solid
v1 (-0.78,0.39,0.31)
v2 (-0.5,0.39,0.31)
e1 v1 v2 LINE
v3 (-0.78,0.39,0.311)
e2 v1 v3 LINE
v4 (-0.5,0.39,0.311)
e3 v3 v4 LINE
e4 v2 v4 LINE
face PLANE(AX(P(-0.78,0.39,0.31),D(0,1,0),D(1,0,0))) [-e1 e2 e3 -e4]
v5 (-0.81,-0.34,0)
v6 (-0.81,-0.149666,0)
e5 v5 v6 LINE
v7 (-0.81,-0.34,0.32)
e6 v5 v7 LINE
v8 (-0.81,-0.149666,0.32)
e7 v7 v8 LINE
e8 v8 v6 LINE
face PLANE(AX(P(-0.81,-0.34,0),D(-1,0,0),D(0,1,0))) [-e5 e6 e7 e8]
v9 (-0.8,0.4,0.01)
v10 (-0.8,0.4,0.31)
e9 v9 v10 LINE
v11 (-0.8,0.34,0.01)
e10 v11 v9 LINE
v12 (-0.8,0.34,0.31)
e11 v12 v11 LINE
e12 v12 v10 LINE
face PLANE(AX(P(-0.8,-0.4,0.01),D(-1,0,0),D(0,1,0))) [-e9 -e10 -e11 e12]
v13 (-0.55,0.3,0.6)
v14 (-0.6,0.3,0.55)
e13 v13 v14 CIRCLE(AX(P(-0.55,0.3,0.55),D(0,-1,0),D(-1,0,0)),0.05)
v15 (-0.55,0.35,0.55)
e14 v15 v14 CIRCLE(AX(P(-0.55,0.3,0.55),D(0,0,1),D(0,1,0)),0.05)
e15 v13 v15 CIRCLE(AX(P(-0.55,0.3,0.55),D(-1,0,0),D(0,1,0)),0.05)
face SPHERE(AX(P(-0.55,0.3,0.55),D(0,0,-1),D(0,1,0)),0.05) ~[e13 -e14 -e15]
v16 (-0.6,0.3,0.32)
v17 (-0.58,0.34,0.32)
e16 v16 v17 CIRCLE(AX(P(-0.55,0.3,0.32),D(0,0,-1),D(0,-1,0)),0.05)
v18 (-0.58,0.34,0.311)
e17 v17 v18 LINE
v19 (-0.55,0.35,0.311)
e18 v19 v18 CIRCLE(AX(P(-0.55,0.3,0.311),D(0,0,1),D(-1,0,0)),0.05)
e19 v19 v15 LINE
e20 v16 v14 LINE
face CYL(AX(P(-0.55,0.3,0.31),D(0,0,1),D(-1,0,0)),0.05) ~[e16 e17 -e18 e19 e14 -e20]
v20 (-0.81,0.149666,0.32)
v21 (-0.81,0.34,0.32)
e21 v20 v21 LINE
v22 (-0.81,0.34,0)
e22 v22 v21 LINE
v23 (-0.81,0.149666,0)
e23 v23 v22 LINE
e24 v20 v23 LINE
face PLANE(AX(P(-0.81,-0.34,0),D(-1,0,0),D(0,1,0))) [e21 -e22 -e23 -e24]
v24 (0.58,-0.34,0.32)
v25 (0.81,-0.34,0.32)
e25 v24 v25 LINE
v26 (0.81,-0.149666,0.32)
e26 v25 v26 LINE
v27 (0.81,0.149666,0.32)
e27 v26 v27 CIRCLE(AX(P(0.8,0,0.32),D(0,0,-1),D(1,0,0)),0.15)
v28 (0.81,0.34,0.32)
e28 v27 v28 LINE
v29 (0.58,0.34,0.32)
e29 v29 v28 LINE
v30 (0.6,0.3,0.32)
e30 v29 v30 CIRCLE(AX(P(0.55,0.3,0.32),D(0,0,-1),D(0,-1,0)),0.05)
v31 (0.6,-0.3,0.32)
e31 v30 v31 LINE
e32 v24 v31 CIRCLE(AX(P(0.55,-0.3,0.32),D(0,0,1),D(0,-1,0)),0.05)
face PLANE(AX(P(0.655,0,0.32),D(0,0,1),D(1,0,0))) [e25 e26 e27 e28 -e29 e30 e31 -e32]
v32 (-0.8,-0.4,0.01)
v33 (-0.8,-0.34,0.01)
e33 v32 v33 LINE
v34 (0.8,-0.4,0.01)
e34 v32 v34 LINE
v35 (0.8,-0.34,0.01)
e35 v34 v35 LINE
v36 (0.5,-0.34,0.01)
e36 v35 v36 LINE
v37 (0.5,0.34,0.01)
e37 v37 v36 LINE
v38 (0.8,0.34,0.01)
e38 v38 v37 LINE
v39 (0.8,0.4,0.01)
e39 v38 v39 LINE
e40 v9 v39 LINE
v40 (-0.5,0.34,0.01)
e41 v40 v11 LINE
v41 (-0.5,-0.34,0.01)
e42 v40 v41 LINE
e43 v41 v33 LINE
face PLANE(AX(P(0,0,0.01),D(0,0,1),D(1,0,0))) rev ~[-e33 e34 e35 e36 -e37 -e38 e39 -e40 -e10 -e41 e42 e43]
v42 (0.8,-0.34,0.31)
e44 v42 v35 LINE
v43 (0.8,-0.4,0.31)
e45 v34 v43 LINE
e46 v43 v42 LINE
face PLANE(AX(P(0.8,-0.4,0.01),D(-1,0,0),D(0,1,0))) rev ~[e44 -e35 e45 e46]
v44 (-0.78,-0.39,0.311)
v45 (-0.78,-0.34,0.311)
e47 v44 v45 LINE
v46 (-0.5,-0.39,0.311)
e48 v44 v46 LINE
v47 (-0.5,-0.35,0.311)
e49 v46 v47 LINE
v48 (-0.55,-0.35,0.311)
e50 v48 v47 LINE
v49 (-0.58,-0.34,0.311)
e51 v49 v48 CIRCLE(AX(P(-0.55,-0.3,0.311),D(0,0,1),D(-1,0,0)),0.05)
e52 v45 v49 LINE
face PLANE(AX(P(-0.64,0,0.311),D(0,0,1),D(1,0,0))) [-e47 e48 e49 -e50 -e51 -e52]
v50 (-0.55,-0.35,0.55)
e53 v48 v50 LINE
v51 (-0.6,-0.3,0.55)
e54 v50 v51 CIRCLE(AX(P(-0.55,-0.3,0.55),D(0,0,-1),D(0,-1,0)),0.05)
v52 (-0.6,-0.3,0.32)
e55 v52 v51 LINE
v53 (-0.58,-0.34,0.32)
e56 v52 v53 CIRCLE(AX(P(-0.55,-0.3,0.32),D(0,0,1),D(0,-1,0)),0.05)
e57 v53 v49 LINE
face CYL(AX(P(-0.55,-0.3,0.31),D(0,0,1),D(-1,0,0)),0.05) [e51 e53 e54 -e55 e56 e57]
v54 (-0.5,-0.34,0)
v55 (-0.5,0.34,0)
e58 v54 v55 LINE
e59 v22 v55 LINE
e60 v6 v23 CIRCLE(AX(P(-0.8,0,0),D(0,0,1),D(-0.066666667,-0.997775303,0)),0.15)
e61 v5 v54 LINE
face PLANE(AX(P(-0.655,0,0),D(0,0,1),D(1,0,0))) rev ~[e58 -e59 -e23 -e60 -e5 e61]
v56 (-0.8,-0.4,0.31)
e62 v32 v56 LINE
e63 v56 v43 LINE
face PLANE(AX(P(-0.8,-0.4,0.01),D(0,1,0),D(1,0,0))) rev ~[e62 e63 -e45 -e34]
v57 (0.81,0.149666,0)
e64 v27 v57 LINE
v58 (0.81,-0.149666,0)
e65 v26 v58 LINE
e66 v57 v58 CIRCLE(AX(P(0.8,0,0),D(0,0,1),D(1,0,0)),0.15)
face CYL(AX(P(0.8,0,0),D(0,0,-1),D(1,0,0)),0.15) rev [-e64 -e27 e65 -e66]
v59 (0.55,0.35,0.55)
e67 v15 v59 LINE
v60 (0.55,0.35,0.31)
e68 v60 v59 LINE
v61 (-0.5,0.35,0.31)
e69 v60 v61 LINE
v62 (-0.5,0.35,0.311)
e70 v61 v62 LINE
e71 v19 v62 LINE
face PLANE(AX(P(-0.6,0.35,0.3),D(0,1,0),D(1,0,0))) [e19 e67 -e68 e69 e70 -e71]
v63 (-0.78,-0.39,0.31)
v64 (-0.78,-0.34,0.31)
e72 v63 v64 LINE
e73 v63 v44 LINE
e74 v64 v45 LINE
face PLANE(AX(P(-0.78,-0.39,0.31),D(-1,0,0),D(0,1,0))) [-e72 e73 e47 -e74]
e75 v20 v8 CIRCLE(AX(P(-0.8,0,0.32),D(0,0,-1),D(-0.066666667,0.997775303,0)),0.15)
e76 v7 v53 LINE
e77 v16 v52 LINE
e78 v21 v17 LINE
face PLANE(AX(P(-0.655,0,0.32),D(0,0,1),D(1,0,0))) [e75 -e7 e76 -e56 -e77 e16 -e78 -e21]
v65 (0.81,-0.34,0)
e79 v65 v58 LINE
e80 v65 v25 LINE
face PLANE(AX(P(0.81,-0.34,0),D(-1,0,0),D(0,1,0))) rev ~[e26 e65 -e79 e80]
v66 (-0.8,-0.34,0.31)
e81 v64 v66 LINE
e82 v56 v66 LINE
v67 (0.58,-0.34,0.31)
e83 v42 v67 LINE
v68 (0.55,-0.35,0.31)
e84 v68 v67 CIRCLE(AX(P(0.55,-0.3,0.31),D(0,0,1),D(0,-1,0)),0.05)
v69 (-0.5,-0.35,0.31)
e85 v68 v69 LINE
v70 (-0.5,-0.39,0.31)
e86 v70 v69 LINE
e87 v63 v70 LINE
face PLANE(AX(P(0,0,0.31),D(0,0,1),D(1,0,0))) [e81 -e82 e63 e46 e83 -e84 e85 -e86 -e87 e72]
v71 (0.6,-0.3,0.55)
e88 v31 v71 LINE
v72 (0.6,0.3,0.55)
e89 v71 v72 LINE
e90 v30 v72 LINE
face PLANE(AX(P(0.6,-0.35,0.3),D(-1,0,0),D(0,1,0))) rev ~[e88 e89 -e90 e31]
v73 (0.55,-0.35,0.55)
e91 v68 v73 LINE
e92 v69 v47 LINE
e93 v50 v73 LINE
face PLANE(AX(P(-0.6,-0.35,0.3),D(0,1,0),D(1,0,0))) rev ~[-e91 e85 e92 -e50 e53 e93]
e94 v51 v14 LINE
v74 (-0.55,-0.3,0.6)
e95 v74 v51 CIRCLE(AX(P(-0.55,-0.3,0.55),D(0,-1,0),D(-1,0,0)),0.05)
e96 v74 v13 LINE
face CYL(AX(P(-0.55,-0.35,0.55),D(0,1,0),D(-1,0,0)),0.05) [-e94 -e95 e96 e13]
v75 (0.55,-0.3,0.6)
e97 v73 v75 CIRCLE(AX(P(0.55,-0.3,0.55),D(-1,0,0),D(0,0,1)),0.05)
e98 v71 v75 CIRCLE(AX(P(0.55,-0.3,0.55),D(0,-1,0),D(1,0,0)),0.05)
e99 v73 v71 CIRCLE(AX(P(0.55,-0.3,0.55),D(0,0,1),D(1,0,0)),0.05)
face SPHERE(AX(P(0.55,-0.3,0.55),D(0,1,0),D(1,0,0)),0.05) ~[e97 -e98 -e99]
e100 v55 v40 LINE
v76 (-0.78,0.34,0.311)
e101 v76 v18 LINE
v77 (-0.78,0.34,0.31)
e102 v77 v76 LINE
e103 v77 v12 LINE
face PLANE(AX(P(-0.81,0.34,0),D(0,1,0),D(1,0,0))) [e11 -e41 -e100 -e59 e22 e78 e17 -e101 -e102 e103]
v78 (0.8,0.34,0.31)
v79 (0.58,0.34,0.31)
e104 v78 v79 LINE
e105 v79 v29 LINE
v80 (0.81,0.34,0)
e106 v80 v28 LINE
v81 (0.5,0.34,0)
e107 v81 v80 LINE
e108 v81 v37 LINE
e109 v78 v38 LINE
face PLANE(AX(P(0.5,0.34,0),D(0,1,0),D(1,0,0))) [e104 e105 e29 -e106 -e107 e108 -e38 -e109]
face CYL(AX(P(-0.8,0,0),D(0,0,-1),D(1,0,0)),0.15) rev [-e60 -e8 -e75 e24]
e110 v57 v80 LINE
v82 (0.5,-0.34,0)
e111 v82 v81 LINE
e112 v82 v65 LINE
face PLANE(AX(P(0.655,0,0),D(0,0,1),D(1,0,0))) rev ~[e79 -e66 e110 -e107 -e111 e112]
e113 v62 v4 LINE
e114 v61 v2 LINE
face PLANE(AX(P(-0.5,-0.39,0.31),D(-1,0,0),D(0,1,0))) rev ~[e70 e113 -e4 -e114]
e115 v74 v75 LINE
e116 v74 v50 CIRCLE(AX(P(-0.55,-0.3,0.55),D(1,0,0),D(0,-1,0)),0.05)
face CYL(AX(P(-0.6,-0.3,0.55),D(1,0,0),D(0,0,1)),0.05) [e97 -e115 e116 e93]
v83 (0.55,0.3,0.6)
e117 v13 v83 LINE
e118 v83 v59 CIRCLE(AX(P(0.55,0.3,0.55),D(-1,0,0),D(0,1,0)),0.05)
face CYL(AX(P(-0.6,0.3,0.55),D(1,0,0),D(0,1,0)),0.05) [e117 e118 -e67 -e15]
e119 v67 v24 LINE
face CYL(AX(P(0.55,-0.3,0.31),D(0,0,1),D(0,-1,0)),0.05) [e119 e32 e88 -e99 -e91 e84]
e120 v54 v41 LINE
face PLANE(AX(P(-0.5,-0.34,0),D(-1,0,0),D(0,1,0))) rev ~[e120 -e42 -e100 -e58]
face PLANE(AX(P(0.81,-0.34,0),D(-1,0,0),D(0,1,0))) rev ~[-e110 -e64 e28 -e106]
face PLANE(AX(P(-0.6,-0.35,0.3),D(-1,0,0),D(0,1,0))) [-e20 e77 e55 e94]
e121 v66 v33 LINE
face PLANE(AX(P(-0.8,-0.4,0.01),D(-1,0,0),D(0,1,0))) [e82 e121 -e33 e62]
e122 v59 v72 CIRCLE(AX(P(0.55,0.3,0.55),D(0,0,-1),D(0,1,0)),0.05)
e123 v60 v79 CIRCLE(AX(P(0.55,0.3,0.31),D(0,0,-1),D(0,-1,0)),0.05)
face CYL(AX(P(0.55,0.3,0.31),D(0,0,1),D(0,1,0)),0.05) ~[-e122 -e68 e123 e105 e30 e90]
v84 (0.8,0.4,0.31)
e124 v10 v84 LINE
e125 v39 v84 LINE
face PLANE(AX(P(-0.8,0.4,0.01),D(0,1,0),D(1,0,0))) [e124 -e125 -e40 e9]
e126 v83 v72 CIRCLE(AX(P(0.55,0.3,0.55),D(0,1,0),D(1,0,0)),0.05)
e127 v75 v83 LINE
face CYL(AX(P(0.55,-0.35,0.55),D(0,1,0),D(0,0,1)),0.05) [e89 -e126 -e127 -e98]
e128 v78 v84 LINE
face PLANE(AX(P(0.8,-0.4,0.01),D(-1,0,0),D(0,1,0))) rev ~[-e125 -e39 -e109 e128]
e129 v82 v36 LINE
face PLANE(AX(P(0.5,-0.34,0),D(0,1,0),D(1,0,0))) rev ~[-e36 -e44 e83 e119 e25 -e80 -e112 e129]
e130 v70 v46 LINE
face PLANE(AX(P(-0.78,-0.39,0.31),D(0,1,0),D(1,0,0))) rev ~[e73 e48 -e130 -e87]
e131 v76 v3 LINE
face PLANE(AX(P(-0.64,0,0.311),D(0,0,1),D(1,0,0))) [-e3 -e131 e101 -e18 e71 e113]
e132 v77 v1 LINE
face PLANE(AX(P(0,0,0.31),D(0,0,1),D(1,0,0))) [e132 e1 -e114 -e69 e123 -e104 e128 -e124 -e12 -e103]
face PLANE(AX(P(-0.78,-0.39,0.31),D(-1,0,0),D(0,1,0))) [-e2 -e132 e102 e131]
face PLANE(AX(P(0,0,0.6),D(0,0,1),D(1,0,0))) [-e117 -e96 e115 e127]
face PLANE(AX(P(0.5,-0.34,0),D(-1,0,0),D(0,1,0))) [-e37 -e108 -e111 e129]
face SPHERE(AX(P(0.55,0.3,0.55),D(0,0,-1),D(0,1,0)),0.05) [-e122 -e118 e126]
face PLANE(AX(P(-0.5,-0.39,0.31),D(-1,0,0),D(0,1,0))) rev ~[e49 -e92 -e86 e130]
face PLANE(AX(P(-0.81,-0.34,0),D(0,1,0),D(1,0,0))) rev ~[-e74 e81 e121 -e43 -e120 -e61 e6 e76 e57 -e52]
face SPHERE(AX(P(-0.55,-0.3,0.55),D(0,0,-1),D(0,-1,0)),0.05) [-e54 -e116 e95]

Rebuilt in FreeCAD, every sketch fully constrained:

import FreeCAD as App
import Part
import Sketcher
from FreeCAD import Vector


def edges_at(feature, points):
    """Names of the edges that pass closest to the given points."""
    edges = feature.Shape.Edges
    near = lambda p: min(range(len(edges)), key=lambda i: edges[i].distToShape(Part.Vertex(*p))[0])
    return sorted({f"Edge{near(p) + 1}" for p in points})

doc = App.newDocument("Part")
params = doc.addObject("Spreadsheet::Sheet", "Params")
for row, (alias, value) in enumerate([
    ("sketch1_width", "1.6 mm"),
    ("sketch1_height", "0.8 mm"),
    ("pad1_length", "0.3 mm"),
    ("sketch2_width", "0.31 mm"),
    ("sketch2_height", "0.68 mm"),
    ("pad2_length", "0.32 mm"),
    ("sketch3_width", "1.2 mm"),
    ("sketch3_height", "0.7 mm"),
    ("pad3_length", "0.3 mm"),
    ("fillet_radius", "0.05 mm"),
    ("sketch4_width", "0.28 mm"),
    ("sketch4_height", "0.78 mm"),
    ("pad4_length", "0.001 mm"),
    ("sketch5_diameter", "0.3 mm"),
    ("pocket1_length", "0.52 mm"),
], start=1):
    params.set(f"A{row}", alias)
    params.set(f"B{row}", "=" + value)
    params.setAlias(f"B{row}", alias)

body = doc.addObject("PartDesign::Body", "Body")

sketch1 = doc.addObject("Sketcher::SketchObject", "Sketch")
body.addObject(sketch1)
sketch1.AttachmentSupport = (doc.XY_Plane, [""])
sketch1.MapMode = "FlatFace"
sketch1.AttachmentOffset = App.Placement(Vector(0, 0, 0.01), App.Rotation())
sketch1.addGeometry([
    Part.LineSegment(Vector(-0.8, 0.4, 0), Vector(-0.8, -0.4, 0)),
    Part.LineSegment(Vector(-0.8, -0.4, 0), Vector(0.8, -0.4, 0)),
    Part.LineSegment(Vector(0.8, -0.4, 0), Vector(0.8, 0.4, 0)),
    Part.LineSegment(Vector(0.8, 0.4, 0), Vector(-0.8, 0.4, 0)),
], False)
sketch1.addConstraint([
    Sketcher.Constraint("Coincident", 0, 2, 1, 1),
    Sketcher.Constraint("Coincident", 1, 2, 2, 1),
    Sketcher.Constraint("Coincident", 2, 2, 3, 1),
    Sketcher.Constraint("Coincident", 3, 2, 0, 1),
    Sketcher.Constraint("Vertical", 0),
    Sketcher.Constraint("Horizontal", 1),
    Sketcher.Constraint("Vertical", 2),
    Sketcher.Constraint("Horizontal", 3),
    Sketcher.Constraint("Symmetric", 0, 2, 2, 2, -1, 1),
    Sketcher.Constraint("DistanceX", 1, 1, 1, 2, 1.6),
    Sketcher.Constraint("DistanceY", 0, 2, 0, 1, 0.8),
])
sketch1.setExpression("Constraints[9]", "Params.sketch1_width")
sketch1.setExpression("Constraints[10]", "Params.sketch1_height")
pad1 = doc.addObject("PartDesign::Pad", "Pad")
body.addObject(pad1)
pad1.Profile = sketch1
pad1.setExpression("Length", "Params.pad1_length")

sketch2 = doc.addObject("Sketcher::SketchObject", "Sketch001")
body.addObject(sketch2)
sketch2.AttachmentSupport = (doc.XY_Plane, [""])
sketch2.MapMode = "FlatFace"
sketch2.addGeometry([
    Part.LineSegment(Vector(-0.81, 0.34, 0), Vector(-0.81, -0.34, 0)),
    Part.LineSegment(Vector(-0.81, -0.34, 0), Vector(-0.5, -0.34, 0)),
    Part.LineSegment(Vector(-0.5, -0.34, 0), Vector(-0.5, 0.34, 0)),
    Part.LineSegment(Vector(-0.5, 0.34, 0), Vector(-0.81, 0.34, 0)),
    Part.LineSegment(Vector(0.5, 0.34, 0), Vector(0.5, -0.34, 0)),
    Part.LineSegment(Vector(0.5, -0.34, 0), Vector(0.81, -0.34, 0)),
    Part.LineSegment(Vector(0.81, -0.34, 0), Vector(0.81, 0.34, 0)),
    Part.LineSegment(Vector(0.81, 0.34, 0), Vector(0.5, 0.34, 0)),
], False)
sketch2.addConstraint([
    Sketcher.Constraint("Coincident", 0, 2, 1, 1),
    Sketcher.Constraint("Coincident", 1, 2, 2, 1),
    Sketcher.Constraint("Coincident", 2, 2, 3, 1),
    Sketcher.Constraint("Coincident", 3, 2, 0, 1),
    Sketcher.Constraint("Coincident", 4, 2, 5, 1),
    Sketcher.Constraint("Coincident", 5, 2, 6, 1),
    Sketcher.Constraint("Coincident", 6, 2, 7, 1),
    Sketcher.Constraint("Coincident", 7, 2, 4, 1),
    Sketcher.Constraint("Vertical", 0),
    Sketcher.Constraint("Horizontal", 1),
    Sketcher.Constraint("Vertical", 2),
    Sketcher.Constraint("Horizontal", 3),
    Sketcher.Constraint("Vertical", 4),
    Sketcher.Constraint("Horizontal", 5),
    Sketcher.Constraint("Vertical", 6),
    Sketcher.Constraint("Horizontal", 7),
    Sketcher.Constraint("Symmetric", 2, 2, 4, 2, -1, 1),
    Sketcher.Constraint("Symmetric", 0, 2, 6, 2, -1, 1),
    Sketcher.Constraint("Horizontal", 1, 2, 4, 2),
    Sketcher.Constraint("DistanceX", 1, 2, 4, 2, 1.0),
    Sketcher.Constraint("DistanceX", 1, 1, 1, 2, 0.31),
    Sketcher.Constraint("DistanceY", 0, 2, 0, 1, 0.68),
])
sketch2.setExpression("Constraints[20]", "Params.sketch2_width")
sketch2.setExpression("Constraints[21]", "Params.sketch2_height")
pad2 = doc.addObject("PartDesign::Pad", "Pad001")
body.addObject(pad2)
pad2.Profile = sketch2
pad2.setExpression("Length", "Params.pad2_length")

sketch3 = doc.addObject("Sketcher::SketchObject", "Sketch002")
body.addObject(sketch3)
sketch3.AttachmentSupport = (doc.XY_Plane, [""])
sketch3.MapMode = "FlatFace"
sketch3.AttachmentOffset = App.Placement(Vector(0, 0, 0.3), App.Rotation())
sketch3.addGeometry([
    Part.LineSegment(Vector(-0.6, 0.35, 0), Vector(-0.6, -0.35, 0)),
    Part.LineSegment(Vector(-0.6, -0.35, 0), Vector(0.6, -0.35, 0)),
    Part.LineSegment(Vector(0.6, -0.35, 0), Vector(0.6, 0.35, 0)),
    Part.LineSegment(Vector(0.6, 0.35, 0), Vector(-0.6, 0.35, 0)),
], False)
sketch3.addConstraint([
    Sketcher.Constraint("Coincident", 0, 2, 1, 1),
    Sketcher.Constraint("Coincident", 1, 2, 2, 1),
    Sketcher.Constraint("Coincident", 2, 2, 3, 1),
    Sketcher.Constraint("Coincident", 3, 2, 0, 1),
    Sketcher.Constraint("Vertical", 0),
    Sketcher.Constraint("Horizontal", 1),
    Sketcher.Constraint("Vertical", 2),
    Sketcher.Constraint("Horizontal", 3),
    Sketcher.Constraint("Symmetric", 0, 2, 2, 2, -1, 1),
    Sketcher.Constraint("DistanceX", 1, 1, 1, 2, 1.2),
    Sketcher.Constraint("DistanceY", 0, 2, 0, 1, 0.7),
])
sketch3.setExpression("Constraints[9]", "Params.sketch3_width")
sketch3.setExpression("Constraints[10]", "Params.sketch3_height")
pad3 = doc.addObject("PartDesign::Pad", "Pad002")
body.addObject(pad3)
pad3.Profile = sketch3
pad3.setExpression("Length", "Params.pad3_length")
doc.recompute()

fillet = doc.addObject("PartDesign::Fillet", "Fillet")
body.addObject(fillet)
fillet.Base = (pad3, edges_at(pad3, [
    (0.6, 0.35, 0.455),
    (-0.6, 0.35, 0.455),
    (0, 0.35, 0.6),
    (0.6, 0, 0.6),
    (0.6, -0.35, 0.455),
    (-0.6, -0.35, 0.455),
    (0, -0.35, 0.6),
    (-0.6, 0, 0.6),
]))
fillet.setExpression("Radius", "Params.fillet_radius")

sketch4 = doc.addObject("Sketcher::SketchObject", "Sketch003")
body.addObject(sketch4)
sketch4.AttachmentSupport = (doc.XY_Plane, [""])
sketch4.MapMode = "FlatFace"
sketch4.AttachmentOffset = App.Placement(Vector(0, 0, 0.31), App.Rotation())
sketch4.addGeometry([
    Part.LineSegment(Vector(-0.78, 0.39, 0), Vector(-0.78, -0.39, 0)),
    Part.LineSegment(Vector(-0.78, -0.39, 0), Vector(-0.5, -0.39, 0)),
    Part.LineSegment(Vector(-0.5, -0.39, 0), Vector(-0.5, 0.39, 0)),
    Part.LineSegment(Vector(-0.5, 0.39, 0), Vector(-0.78, 0.39, 0)),
], False)
sketch4.addConstraint([
    Sketcher.Constraint("Coincident", 0, 2, 1, 1),
    Sketcher.Constraint("Coincident", 1, 2, 2, 1),
    Sketcher.Constraint("Coincident", 2, 2, 3, 1),
    Sketcher.Constraint("Coincident", 3, 2, 0, 1),
    Sketcher.Constraint("Vertical", 0),
    Sketcher.Constraint("Horizontal", 1),
    Sketcher.Constraint("Vertical", 2),
    Sketcher.Constraint("Horizontal", 3),
    Sketcher.Constraint("DistanceX", 1, 1, 1, 2, 0.28),
    Sketcher.Constraint("DistanceY", 0, 2, 0, 1, 0.78),
    Sketcher.Constraint("DistanceX", 1, 2, -1, 1, 0.5),
    Sketcher.Constraint("DistanceY", 0, 2, -1, 1, 0.39),
])
sketch4.setExpression("Constraints[8]", "Params.sketch4_width")
sketch4.setExpression("Constraints[9]", "Params.sketch4_height")
pad4 = doc.addObject("PartDesign::Pad", "Pad003")
body.addObject(pad4)
pad4.Profile = sketch4
pad4.setExpression("Length", "Params.pad4_length")

sketch5 = doc.addObject("Sketcher::SketchObject", "Sketch004")
body.addObject(sketch5)
sketch5.AttachmentSupport = (doc.XY_Plane, [""])
sketch5.MapMode = "FlatFace"
sketch5.addGeometry([
    Part.Circle(Vector(-0.8, 0, 0), Vector(0, 0, 1), 0.15),
    Part.Circle(Vector(0.8, 0, 0), Vector(0, 0, 1), 0.15),
], False)
sketch5.addConstraint([
    Sketcher.Constraint("Equal", 0, 1),
    Sketcher.Constraint("Symmetric", 0, 3, 1, 3, -1, 1),
    Sketcher.Constraint("PointOnObject", 0, 3, -1),
    Sketcher.Constraint("Diameter", 0, 0.3),
    Sketcher.Constraint("DistanceX", 0, 3, -1, 1, 0.8),
])
sketch5.setExpression("Constraints[3]", "Params.sketch5_diameter")
pocket1 = doc.addObject("PartDesign::Pocket", "Pocket")
body.addObject(pocket1)
pocket1.Profile = sketch5
pocket1.setExpression("Length", "Params.pocket1_length")
pocket1.Reversed = True

doc.recompute()
